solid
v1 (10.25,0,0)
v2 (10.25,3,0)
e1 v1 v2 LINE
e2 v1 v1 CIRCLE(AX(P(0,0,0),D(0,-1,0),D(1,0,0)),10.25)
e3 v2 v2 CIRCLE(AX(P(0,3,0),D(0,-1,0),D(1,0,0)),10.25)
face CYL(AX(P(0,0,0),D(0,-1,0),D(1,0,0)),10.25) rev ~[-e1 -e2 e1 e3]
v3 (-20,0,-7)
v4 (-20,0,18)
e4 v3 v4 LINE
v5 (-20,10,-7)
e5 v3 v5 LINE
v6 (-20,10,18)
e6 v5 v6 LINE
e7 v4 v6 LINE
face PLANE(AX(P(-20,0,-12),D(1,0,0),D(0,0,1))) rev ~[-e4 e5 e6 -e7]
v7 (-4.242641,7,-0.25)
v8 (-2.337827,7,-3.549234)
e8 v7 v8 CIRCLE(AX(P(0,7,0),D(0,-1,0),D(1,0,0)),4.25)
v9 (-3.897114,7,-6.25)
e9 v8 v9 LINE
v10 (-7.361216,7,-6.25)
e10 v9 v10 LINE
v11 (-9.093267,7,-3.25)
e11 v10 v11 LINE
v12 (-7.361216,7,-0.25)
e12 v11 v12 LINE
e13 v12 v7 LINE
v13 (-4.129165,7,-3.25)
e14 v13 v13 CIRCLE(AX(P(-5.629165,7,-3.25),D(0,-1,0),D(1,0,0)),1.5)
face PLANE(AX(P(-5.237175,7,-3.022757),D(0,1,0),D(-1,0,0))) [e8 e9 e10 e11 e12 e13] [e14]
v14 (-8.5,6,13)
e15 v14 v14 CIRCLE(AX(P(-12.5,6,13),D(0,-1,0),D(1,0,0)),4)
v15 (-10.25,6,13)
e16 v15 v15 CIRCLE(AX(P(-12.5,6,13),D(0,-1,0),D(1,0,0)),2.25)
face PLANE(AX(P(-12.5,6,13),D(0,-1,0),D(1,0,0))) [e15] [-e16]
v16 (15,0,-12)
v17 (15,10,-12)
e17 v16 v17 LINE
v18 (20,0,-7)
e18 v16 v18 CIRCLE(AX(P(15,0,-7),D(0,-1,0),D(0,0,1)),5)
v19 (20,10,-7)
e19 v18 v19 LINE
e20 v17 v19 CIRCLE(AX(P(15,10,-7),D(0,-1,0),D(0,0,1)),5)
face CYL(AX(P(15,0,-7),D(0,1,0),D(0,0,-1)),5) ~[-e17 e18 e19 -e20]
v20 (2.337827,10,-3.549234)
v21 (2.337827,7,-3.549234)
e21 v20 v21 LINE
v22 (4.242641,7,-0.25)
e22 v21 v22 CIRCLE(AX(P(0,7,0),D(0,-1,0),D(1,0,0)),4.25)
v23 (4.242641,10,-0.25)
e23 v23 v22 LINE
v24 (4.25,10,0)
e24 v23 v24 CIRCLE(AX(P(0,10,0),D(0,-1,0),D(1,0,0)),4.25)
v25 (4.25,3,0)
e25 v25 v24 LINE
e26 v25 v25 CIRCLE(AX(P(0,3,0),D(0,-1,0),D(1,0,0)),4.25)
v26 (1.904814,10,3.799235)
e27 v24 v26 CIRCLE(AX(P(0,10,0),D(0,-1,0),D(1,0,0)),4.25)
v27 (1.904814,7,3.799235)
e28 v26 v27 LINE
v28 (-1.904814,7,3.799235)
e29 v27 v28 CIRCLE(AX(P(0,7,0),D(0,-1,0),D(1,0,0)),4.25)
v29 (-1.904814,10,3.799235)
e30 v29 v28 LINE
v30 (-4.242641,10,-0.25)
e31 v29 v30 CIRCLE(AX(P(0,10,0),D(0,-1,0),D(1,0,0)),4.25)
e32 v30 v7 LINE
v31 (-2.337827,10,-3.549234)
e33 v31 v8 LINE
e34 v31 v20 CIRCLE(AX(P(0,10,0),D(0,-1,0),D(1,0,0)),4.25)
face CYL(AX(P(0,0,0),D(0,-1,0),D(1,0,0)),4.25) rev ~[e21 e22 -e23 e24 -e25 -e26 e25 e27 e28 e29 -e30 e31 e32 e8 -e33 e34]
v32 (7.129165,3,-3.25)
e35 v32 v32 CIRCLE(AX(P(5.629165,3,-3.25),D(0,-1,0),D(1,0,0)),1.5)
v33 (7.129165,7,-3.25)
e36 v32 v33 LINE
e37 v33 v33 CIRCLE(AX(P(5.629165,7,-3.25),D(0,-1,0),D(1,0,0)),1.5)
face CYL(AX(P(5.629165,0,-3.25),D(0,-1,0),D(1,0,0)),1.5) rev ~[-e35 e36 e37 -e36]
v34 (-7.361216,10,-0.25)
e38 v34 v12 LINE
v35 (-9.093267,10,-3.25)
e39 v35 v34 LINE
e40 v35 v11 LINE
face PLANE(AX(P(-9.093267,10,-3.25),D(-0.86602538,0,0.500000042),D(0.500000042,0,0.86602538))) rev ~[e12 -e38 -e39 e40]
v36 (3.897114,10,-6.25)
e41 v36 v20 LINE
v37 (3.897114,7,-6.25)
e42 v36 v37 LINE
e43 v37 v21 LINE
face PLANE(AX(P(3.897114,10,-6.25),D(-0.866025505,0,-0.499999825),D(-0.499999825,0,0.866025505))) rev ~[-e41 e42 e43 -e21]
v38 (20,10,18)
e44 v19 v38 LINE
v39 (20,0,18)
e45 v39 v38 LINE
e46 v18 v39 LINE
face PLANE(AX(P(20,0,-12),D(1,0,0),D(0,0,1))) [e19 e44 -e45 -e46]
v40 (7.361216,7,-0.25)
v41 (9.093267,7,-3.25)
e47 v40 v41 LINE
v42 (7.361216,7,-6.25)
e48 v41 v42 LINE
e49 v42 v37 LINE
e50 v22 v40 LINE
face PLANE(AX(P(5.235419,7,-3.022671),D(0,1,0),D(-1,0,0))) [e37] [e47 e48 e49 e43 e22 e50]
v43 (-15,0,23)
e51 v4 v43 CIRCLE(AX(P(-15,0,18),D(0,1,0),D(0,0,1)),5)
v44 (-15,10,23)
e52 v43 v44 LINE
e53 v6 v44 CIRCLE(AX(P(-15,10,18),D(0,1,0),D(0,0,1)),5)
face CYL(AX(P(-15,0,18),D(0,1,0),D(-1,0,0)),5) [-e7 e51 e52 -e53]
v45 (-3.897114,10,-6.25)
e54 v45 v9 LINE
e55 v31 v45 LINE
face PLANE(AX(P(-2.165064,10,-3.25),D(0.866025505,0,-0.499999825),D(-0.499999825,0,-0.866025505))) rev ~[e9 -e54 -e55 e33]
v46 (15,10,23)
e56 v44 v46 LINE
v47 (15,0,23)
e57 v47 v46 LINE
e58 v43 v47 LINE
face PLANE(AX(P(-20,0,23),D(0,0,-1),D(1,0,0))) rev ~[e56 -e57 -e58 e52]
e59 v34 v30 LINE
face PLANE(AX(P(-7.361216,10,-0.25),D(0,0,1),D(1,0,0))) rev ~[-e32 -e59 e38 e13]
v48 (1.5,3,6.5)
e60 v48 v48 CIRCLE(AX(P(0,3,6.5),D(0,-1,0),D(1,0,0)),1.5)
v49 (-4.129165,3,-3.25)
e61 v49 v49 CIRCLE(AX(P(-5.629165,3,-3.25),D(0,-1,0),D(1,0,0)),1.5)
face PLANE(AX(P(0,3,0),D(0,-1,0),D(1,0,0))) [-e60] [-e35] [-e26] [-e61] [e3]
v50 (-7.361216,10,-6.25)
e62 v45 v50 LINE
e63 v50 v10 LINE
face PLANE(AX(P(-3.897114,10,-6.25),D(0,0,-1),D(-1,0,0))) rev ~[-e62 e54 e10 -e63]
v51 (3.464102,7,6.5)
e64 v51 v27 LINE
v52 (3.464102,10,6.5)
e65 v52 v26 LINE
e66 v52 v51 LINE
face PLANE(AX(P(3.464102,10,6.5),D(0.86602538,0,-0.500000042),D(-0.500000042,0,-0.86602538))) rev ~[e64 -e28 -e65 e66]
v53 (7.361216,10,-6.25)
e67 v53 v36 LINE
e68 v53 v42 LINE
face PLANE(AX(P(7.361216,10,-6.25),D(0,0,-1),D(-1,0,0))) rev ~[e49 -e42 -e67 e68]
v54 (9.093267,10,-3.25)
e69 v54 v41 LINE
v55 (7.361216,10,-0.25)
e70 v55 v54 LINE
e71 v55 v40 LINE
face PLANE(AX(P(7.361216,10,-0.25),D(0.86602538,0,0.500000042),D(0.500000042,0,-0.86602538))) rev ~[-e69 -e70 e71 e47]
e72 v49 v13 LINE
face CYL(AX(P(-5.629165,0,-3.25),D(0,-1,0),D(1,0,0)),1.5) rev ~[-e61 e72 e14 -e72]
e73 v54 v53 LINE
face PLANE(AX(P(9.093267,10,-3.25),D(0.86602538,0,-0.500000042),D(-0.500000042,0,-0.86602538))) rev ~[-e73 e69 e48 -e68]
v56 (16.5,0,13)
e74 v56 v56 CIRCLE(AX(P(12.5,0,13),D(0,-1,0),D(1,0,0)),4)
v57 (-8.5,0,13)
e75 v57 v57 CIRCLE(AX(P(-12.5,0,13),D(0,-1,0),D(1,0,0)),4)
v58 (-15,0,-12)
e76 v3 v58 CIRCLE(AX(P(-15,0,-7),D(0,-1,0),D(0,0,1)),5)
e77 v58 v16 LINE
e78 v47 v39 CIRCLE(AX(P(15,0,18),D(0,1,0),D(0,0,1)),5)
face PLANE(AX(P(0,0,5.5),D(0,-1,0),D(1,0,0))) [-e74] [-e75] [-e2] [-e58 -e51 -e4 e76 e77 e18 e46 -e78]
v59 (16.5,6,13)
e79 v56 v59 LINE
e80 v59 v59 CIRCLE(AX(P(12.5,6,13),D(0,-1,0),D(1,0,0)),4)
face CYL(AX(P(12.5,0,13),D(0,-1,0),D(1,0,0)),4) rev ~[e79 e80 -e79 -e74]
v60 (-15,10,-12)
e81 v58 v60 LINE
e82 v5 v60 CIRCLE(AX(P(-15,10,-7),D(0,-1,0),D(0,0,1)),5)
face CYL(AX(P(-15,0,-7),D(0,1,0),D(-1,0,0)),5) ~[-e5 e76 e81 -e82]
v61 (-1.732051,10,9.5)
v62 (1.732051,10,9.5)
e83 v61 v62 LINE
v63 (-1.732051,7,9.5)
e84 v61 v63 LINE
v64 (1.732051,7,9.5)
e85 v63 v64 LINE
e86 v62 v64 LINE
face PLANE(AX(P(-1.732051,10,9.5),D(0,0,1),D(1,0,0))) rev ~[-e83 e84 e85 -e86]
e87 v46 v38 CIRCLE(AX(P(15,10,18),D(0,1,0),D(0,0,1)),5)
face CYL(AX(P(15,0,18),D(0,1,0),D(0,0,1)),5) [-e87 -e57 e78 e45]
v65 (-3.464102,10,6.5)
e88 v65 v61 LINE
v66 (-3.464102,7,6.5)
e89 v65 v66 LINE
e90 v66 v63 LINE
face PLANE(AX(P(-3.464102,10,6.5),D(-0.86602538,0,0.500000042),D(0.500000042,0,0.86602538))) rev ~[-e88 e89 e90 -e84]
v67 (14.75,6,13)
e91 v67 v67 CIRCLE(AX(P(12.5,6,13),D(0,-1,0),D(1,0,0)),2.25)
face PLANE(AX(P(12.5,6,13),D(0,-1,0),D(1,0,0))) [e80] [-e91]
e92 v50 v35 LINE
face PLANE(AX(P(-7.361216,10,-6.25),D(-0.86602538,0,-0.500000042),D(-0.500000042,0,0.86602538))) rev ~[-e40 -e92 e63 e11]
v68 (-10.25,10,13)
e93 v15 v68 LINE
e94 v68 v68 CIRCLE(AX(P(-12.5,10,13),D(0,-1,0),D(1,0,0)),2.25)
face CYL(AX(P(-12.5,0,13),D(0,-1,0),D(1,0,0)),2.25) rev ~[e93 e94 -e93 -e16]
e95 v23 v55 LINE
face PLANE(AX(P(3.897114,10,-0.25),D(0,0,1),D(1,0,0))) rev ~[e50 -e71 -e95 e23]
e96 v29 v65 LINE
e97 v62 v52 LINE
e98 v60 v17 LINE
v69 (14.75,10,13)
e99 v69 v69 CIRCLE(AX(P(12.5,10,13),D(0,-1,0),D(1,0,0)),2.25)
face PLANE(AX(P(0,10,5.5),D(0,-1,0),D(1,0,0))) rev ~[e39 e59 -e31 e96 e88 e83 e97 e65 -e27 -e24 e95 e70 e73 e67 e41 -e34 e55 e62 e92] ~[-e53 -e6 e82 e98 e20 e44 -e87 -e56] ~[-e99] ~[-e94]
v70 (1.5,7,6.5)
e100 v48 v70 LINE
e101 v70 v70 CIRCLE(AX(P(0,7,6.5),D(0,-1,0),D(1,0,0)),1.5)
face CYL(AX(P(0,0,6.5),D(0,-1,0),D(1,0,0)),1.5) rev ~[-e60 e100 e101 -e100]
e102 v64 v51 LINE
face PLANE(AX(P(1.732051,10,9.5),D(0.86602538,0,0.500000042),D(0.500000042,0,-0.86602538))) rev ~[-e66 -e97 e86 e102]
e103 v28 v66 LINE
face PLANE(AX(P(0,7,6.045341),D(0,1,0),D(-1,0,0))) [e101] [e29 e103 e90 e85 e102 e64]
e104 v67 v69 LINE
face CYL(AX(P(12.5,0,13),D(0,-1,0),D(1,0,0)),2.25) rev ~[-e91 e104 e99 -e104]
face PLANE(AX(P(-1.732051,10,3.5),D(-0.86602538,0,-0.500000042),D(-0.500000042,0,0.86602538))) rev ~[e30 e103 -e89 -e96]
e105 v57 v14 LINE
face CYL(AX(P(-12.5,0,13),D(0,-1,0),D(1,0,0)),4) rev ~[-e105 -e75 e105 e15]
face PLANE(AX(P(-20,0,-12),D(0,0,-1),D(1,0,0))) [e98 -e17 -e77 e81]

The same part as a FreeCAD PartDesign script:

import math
import FreeCAD as App
import Part
import Sketcher

V = App.Vector
Q = App.Units.Quantity


def edges_at(feature, points):
    """Names of the edges that pass closest to the given points."""
    edges = feature.Shape.Edges
    near = lambda p: min(range(len(edges)), key=lambda i: edges[i].distToShape(Part.Vertex(*p))[0])
    return sorted({f"Edge{near(p) + 1}" for p in points})


def add_polygon(sketch, points):
    """Adds a closed chain of lines whose ends are joined by coincident constraints."""
    first, n = sketch.GeometryCount, len(points)
    for a, b in zip(points, points[1:] + points[:1]):
        sketch.addGeometry(Part.LineSegment(App.Vector(*a, 0), App.Vector(*b, 0)), False)
    for i in range(n):
        sketch.addConstraint(Sketcher.Constraint("Coincident", first + i, 2, first + (i + 1) % n, 1))

doc = App.newDocument("Part")
body = doc.addObject("PartDesign::Body", "Body")

sketch1 = body.newObject("Sketcher::SketchObject", "Sketch")
sketch1.AttachmentSupport = (doc.getObject("XZ_Plane"), [""])
sketch1.MapMode = "FlatFace"
add_polygon(sketch1, [(-20, 23), (-20, -12), (20, -12), (20, 23)])
sketch1.addGeometry(Part.Circle(V(-5.6, -3.2, 0), V(0, 0, 1), 1.5), False)
sketch1.addGeometry(Part.Circle(V(5.6, -3.2, 0), V(0, 0, 1), 1.5), False)
sketch1.addGeometry(Part.Circle(V(0, 0, 0), V(0, 0, 1), 4.2), False)
sketch1.addGeometry(Part.Circle(V(-12.5, 13, 0), V(0, 0, 1), 2.2), False)
sketch1.addGeometry(Part.Circle(V(0, 6.5, 0), V(0, 0, 1), 1.5), False)
sketch1.addGeometry(Part.Circle(V(12.5, 13, 0), V(0, 0, 1), 2.2), False)
sketch1.addConstraint([
    Sketcher.Constraint("Vertical", 0),
    Sketcher.Constraint("Horizontal", 1),
    Sketcher.Constraint("Vertical", 2),
    Sketcher.Constraint("Horizontal", 3),
    Sketcher.Constraint("Coincident", 6, 3, -1, 1),
    Sketcher.Constraint("Equal", 4, 5),
    Sketcher.Constraint("Equal", 5, 8),
    Sketcher.Constraint("Equal", 7, 9),
    Sketcher.Constraint("Symmetric", 4, 3, 5, 3, -2),
    Sketcher.Constraint("Symmetric", 7, 3, 9, 3, -2),
    Sketcher.Constraint("PointOnObject", 8, 3, -2),
    Sketcher.Constraint("Diameter", 4, 3.0),
    Sketcher.Constraint("Diameter", 6, 8.5),
    Sketcher.Constraint("Diameter", 7, 4.5),
    Sketcher.Constraint("DistanceX", 1, 1, 1, 2, 40.0),
    Sketcher.Constraint("DistanceY", 0, 2, 0, 1, 35.0),
    Sketcher.Constraint("DistanceY", -1, 1, 7, 3, 13.0),
    Sketcher.Constraint("DistanceX", 0, 2, -1, 1, 20.0),
    Sketcher.Constraint("DistanceY", 0, 2, -1, 1, 12.0),
    Sketcher.Constraint("DistanceX", 7, 3, 9, 3, 25.0),
    Sketcher.Constraint("DistanceY", -1, 1, 8, 3, 6.5),
    Sketcher.Constraint("DistanceY", 4, 3, -1, 1, 3.25),
    Sketcher.Constraint("DistanceX", 4, 3, 5, 3, 11.25833),
])
pad1 = body.newObject("PartDesign::Pad", "Pad")
pad1.Profile = sketch1
pad1.Length = 10
pad1.Reversed = True

sketch2 = body.newObject("Sketcher::SketchObject", "Sketch001")
sketch2.AttachmentSupport = (doc.getObject("XZ_Plane"), [""])
sketch2.MapMode = "FlatFace"
sketch2.addGeometry([
    Part.Circle(V(12.5, 13, 0), V(0, 0, 1), 4),
    Part.Circle(V(12.5, 13, 0), V(0, 0, 1), 2.2),
    Part.Circle(V(-12.5, 13, 0), V(0, 0, 1), 4),
    Part.Circle(V(-12.5, 13, 0), V(0, 0, 1), 2.2),
], False)
sketch2.addConstraint([
    Sketcher.Constraint("Coincident", 1, 3, 0, 3),
    Sketcher.Constraint("Coincident", 3, 3, 2, 3),
    Sketcher.Constraint("Equal", 0, 2),
    Sketcher.Constraint("Equal", 1, 3),
    Sketcher.Constraint("Symmetric", 0, 3, 2, 3, -2),
    Sketcher.Constraint("Diameter", 0, 8.0),
    Sketcher.Constraint("Diameter", 1, 4.5),
    Sketcher.Constraint("DistanceY", -1, 1, 0, 3, 13.0),
    Sketcher.Constraint("DistanceX", 2, 3, 0, 3, 25.0),
])
pocket1 = body.newObject("PartDesign::Pocket", "Pocket")
pocket1.Profile = sketch2
pocket1.Length = 6

sketch3 = body.newObject("Sketcher::SketchObject", "Sketch002")
sketch3.AttachmentSupport = (doc.getObject("XZ_Plane"), [""])
sketch3.MapMode = "FlatFace"
sketch3.addGeometry([
    Part.Circle(V(0, 0, 0), V(0, 0, 1), 10.2),
    Part.Circle(V(-5.6, -3.2, 0), V(0, 0, 1), 1.5),
    Part.Circle(V(5.6, -3.2, 0), V(0, 0, 1), 1.5),
    Part.Circle(V(0, 0, 0), V(0, 0, 1), 4.2),
    Part.Circle(V(0, 6.5, 0), V(0, 0, 1), 1.5),
], False)
sketch3.addConstraint([
    Sketcher.Constraint("Coincident", 0, 3, -1, 1),
    Sketcher.Constraint("Coincident", 3, 3, -1, 1),
    Sketcher.Constraint("Equal", 1, 2),
    Sketcher.Constraint("Equal", 2, 4),
    Sketcher.Constraint("Symmetric", 1, 3, 2, 3, -2),
    Sketcher.Constraint("PointOnObject", 4, 3, -2),
    Sketcher.Constraint("Diameter", 1, 3.0),
    Sketcher.Constraint("Diameter", 0, 20.5),
    Sketcher.Constraint("Diameter", 3, 8.5),
    Sketcher.Constraint("DistanceY", -1, 1, 4, 3, 6.5),
    Sketcher.Constraint("DistanceY", 1, 3, -1, 1, 3.25),
    Sketcher.Constraint("DistanceX", 1, 3, 2, 3, 11.25833),
])
pocket2 = body.newObject("PartDesign::Pocket", "Pocket001")
pocket2.Profile = sketch3
pocket2.Length = 3

sketch4 = body.newObject("Sketcher::SketchObject", "Sketch003")
sketch4.AttachmentSupport = (doc.getObject("XZ_Plane"), [""])
sketch4.MapMode = "FlatFace"
sketch4.AttachmentOffset = App.Placement(V(0, 0, -10), App.Rotation())
sketch4.addGeometry([
    Part.LineSegment(V(-1.7, 9.5, 0), V(1.7, 9.5, 0)),
    Part.LineSegment(V(1.7, 9.5, 0), V(3.5, 6.5, 0)),
    Part.LineSegment(V(3.5, 6.5, 0), V(1.7, 3.5, 0)),
    Part.LineSegment(V(1.7, 3.5, 0), V(2.2, 2.8, 0)),
    Part.ArcOfCircle(Part.Circle(V(0, 0, 0), V(0, 0, 1), 3.5), math.radians(52), math.radians(128)),
    Part.LineSegment(V(-2.2, 2.8, 0), V(-1.7, 3.5, 0)),
    Part.LineSegment(V(-1.7, 3.5, 0), V(-3.5, 6.5, 0)),
    Part.LineSegment(V(-3.5, 6.5, 0), V(-1.7, 9.5, 0)),
    Part.LineSegment(V(3.5, 0.5, 0), V(2.2, 2.8, 0)),
    Part.ArcOfCircle(Part.Circle(V(0, 0, 0), V(0, 0, 1), 3.5), math.radians(8), math.radians(52)),
    Part.ArcOfCircle(Part.Circle(V(0, 0, 0), V(0, 0, 1), 3.5), math.radians(128), math.radians(172)),
    Part.LineSegment(V(-2.2, 2.8, 0), V(-3.5, 0.5, 0)),
    Part.ArcOfCircle(Part.Circle(V(0, 0, 0), V(0, 0, 1), 3.5), math.radians(-68), math.radians(8)),
    Part.LineSegment(V(3.5, 0.5, 0), V(3.9, -0.2, 0)),
    Part.LineSegment(V(3.9, -0.2, 0), V(7.4, -0.2, 0)),
    Part.LineSegment(V(7.4, -0.2, 0), V(9.1, -3.2, 0)),
    Part.LineSegment(V(9.1, -3.2, 0), V(7.4, -6.2, 0)),
    Part.LineSegment(V(7.4, -6.2, 0), V(3.9, -6.2, 0)),
    Part.LineSegment(V(3.9, -6.2, 0), V(2.2, -3.2, 0)),
    Part.LineSegment(V(2.2, -3.2, 0), V(1.3, -3.2, 0)),
    Part.LineSegment(V(-3.9, -0.2, 0), V(-3.5, 0.5, 0)),
    Part.ArcOfCircle(Part.Circle(V(0, 0, 0), V(0, 0, 1), 3.5), math.radians(171.79), math.radians(180)),
    Part.ArcOfCircle(Part.Circle(V(0, 0, 0), V(0, 0, 1), 3.5), math.radians(180), math.radians(248)),
    Part.LineSegment(V(-1.3, -3.2, 0), V(-2.2, -3.2, 0)),
    Part.LineSegment(V(-2.2, -3.2, 0), V(-3.9, -6.2, 0)),
    Part.LineSegment(V(-3.9, -6.2, 0), V(-7.4, -6.2, 0)),
    Part.LineSegment(V(-7.4, -6.2, 0), V(-9.1, -3.2, 0)),
    Part.LineSegment(V(-9.1, -3.2, 0), V(-7.4, -0.2, 0)),
    Part.LineSegment(V(-7.4, -0.2, 0), V(-3.9, -0.2, 0)),
    Part.LineSegment(V(-1.3, -3.2, 0), V(1.3, -3.2, 0)),
    Part.ArcOfCircle(Part.Circle(V(0, 0, 0), V(0, 0, 1), 3.5), math.radians(-112), math.radians(-68)),
], False)
sketch4.addConstraint([
    Sketcher.Constraint("Coincident", 0, 2, 1, 1),
    Sketcher.Constraint("Coincident", 1, 2, 2, 1),
    Sketcher.Constraint("Coincident", 2, 2, 3, 1),
    Sketcher.Constraint("Coincident", 3, 2, 4, 1),
    Sketcher.Constraint("Coincident", 4, 2, 5, 1),
    Sketcher.Constraint("Coincident", 5, 2, 6, 1),
    Sketcher.Constraint("Coincident", 6, 2, 7, 1),
    Sketcher.Constraint("Coincident", 7, 2, 0, 1),
    Sketcher.Constraint("Coincident", 8, 1, 9, 1),
    Sketcher.Constraint("Coincident", 9, 2, 8, 2),
    Sketcher.Constraint("Coincident", 10, 1, 11, 1),
    Sketcher.Constraint("Coincident", 11, 2, 10, 2),
    Sketcher.Constraint("Coincident", 12, 2, 13, 1),
    Sketcher.Constraint("Coincident", 13, 2, 14, 1),
    Sketcher.Constraint("Coincident", 14, 2, 15, 1),
    Sketcher.Constraint("Coincident", 15, 2, 16, 1),
    Sketcher.Constraint("Coincident", 16, 2, 17, 1),
    Sketcher.Constraint("Coincident", 17, 2, 18, 1),
    Sketcher.Constraint("Coincident", 18, 2, 19, 1),
    Sketcher.Constraint("Coincident", 19, 2, 12, 1),
    Sketcher.Constraint("Coincident", 20, 2, 21, 1),
    Sketcher.Constraint("Tangent", 21, 2, 22, 1),
    Sketcher.Constraint("Coincident", 22, 2, 23, 1),
    Sketcher.Constraint("Coincident", 23, 2, 24, 1),
    Sketcher.Constraint("Coincident", 24, 2, 25, 1),
    Sketcher.Constraint("Coincident", 25, 2, 26, 1),
    Sketcher.Constraint("Coincident", 26, 2, 27, 1),
    Sketcher.Constraint("Coincident", 27, 2, 28, 1),
    Sketcher.Constraint("Coincident", 28, 2, 20, 1),
    Sketcher.Constraint("Coincident", 29, 1, 30, 1),
    Sketcher.Constraint("Coincident", 30, 2, 29, 2),
    Sketcher.Constraint("Horizontal", 0),
    Sketcher.Constraint("Horizontal", 14),
    Sketcher.Constraint("Horizontal", 17),
    Sketcher.Constraint("Horizontal", 19),
    Sketcher.Constraint("Horizontal", 23),
    Sketcher.Constraint("Horizontal", 25),
    Sketcher.Constraint("Horizontal", 28),
    Sketcher.Constraint("Horizontal", 29),
    Sketcher.Constraint("Coincident", 4, 3, -1, 1),
    Sketcher.Constraint("Coincident", 9, 3, -1, 1),
    Sketcher.Constraint("Coincident", 10, 3, -1, 1),
    Sketcher.Constraint("Coincident", 12, 3, -1, 1),
    Sketcher.Constraint("Coincident", 21, 3, -1, 1),
    Sketcher.Constraint("Coincident", 30, 3, -1, 1),
    Sketcher.Constraint("Coincident", 9, 2, 3, 2),
    Sketcher.Constraint("Coincident", 10, 1, 4, 2),
    Sketcher.Constraint("Coincident", 12, 2, 8, 1),
    Sketcher.Constraint("Coincident", 20, 2, 11, 2),
    Sketcher.Constraint("Coincident", 29, 1, 22, 2),
    Sketcher.Constraint("Coincident", 30, 2, 19, 2),
    Sketcher.Constraint("Symmetric", 2, 2, 5, 2, -2),
    Sketcher.Constraint("Symmetric", 1, 2, 6, 2, -2),
    Sketcher.Constraint("Symmetric", 17, 2, 24, 2, -2),
    Sketcher.Constraint("Symmetric", 15, 2, 26, 2, -2),
    Sketcher.Constraint("Symmetric", 14, 2, 27, 2, -2),
    Sketcher.Constraint("PointOnObject", 21, 2, -1),
    Sketcher.Constraint("Parallel", 1, 3),
    Sketcher.Constraint("Parallel", 2, 5),
    Sketcher.Constraint("Parallel", 3, 6),
    Sketcher.Constraint("Parallel", 5, 7),
    Sketcher.Constraint("Parallel", 6, 8),
    Sketcher.Constraint("Parallel", 7, 11),
    Sketcher.Constraint("Parallel", 8, 13),
    Sketcher.Constraint("Parallel", 13, 15),
    Sketcher.Constraint("Parallel", 11, 16),
    Sketcher.Constraint("Parallel", 15, 18),
    Sketcher.Constraint("Parallel", 16, 20),
    Sketcher.Constraint("Parallel", 20, 24),
    Sketcher.Constraint("Parallel", 18, 26),
    Sketcher.Constraint("Horizontal", 15, 2, 18, 2),
    Sketcher.Constraint("Vertical", 0, 2, 2, 2),
    Sketcher.Constraint("Vertical", 1, 2, 8, 1),
    Sketcher.Constraint("Vertical", 14, 2, 16, 2),
    Sketcher.Constraint("Vertical", 13, 2, 17, 2),
    Sketcher.Constraint("Vertical", 9, 2, 18, 2),
    Sketcher.Constraint("Equal", 0, 14),
    Sketcher.Constraint("Equal", 5, 13),
    Sketcher.Constraint("Radius", 4, 3.500001),
    Sketcher.Constraint("Angle", 1, Q("-59.999997 deg")),
    Sketcher.Constraint("DistanceY", 1, 2, 0, 2, 3.0),
    Sketcher.Constraint("DistanceY", -1, 1, 0, 2, 9.5),
])
pocket3 = body.newObject("PartDesign::Pocket", "Pocket002")
pocket3.Profile = sketch4
pocket3.Length = 3
pocket3.Reversed = True
doc.recompute()

fillet = body.newObject("PartDesign::Fillet", "Fillet")
fillet.Base = (pocket3, edges_at(pocket3, [
    (-20, 5, 23),
    (20, 5, 23),
    (20, 5, -12),
    (-20, 5, -12),
]))
fillet.Radius = 5

doc.recompute()
